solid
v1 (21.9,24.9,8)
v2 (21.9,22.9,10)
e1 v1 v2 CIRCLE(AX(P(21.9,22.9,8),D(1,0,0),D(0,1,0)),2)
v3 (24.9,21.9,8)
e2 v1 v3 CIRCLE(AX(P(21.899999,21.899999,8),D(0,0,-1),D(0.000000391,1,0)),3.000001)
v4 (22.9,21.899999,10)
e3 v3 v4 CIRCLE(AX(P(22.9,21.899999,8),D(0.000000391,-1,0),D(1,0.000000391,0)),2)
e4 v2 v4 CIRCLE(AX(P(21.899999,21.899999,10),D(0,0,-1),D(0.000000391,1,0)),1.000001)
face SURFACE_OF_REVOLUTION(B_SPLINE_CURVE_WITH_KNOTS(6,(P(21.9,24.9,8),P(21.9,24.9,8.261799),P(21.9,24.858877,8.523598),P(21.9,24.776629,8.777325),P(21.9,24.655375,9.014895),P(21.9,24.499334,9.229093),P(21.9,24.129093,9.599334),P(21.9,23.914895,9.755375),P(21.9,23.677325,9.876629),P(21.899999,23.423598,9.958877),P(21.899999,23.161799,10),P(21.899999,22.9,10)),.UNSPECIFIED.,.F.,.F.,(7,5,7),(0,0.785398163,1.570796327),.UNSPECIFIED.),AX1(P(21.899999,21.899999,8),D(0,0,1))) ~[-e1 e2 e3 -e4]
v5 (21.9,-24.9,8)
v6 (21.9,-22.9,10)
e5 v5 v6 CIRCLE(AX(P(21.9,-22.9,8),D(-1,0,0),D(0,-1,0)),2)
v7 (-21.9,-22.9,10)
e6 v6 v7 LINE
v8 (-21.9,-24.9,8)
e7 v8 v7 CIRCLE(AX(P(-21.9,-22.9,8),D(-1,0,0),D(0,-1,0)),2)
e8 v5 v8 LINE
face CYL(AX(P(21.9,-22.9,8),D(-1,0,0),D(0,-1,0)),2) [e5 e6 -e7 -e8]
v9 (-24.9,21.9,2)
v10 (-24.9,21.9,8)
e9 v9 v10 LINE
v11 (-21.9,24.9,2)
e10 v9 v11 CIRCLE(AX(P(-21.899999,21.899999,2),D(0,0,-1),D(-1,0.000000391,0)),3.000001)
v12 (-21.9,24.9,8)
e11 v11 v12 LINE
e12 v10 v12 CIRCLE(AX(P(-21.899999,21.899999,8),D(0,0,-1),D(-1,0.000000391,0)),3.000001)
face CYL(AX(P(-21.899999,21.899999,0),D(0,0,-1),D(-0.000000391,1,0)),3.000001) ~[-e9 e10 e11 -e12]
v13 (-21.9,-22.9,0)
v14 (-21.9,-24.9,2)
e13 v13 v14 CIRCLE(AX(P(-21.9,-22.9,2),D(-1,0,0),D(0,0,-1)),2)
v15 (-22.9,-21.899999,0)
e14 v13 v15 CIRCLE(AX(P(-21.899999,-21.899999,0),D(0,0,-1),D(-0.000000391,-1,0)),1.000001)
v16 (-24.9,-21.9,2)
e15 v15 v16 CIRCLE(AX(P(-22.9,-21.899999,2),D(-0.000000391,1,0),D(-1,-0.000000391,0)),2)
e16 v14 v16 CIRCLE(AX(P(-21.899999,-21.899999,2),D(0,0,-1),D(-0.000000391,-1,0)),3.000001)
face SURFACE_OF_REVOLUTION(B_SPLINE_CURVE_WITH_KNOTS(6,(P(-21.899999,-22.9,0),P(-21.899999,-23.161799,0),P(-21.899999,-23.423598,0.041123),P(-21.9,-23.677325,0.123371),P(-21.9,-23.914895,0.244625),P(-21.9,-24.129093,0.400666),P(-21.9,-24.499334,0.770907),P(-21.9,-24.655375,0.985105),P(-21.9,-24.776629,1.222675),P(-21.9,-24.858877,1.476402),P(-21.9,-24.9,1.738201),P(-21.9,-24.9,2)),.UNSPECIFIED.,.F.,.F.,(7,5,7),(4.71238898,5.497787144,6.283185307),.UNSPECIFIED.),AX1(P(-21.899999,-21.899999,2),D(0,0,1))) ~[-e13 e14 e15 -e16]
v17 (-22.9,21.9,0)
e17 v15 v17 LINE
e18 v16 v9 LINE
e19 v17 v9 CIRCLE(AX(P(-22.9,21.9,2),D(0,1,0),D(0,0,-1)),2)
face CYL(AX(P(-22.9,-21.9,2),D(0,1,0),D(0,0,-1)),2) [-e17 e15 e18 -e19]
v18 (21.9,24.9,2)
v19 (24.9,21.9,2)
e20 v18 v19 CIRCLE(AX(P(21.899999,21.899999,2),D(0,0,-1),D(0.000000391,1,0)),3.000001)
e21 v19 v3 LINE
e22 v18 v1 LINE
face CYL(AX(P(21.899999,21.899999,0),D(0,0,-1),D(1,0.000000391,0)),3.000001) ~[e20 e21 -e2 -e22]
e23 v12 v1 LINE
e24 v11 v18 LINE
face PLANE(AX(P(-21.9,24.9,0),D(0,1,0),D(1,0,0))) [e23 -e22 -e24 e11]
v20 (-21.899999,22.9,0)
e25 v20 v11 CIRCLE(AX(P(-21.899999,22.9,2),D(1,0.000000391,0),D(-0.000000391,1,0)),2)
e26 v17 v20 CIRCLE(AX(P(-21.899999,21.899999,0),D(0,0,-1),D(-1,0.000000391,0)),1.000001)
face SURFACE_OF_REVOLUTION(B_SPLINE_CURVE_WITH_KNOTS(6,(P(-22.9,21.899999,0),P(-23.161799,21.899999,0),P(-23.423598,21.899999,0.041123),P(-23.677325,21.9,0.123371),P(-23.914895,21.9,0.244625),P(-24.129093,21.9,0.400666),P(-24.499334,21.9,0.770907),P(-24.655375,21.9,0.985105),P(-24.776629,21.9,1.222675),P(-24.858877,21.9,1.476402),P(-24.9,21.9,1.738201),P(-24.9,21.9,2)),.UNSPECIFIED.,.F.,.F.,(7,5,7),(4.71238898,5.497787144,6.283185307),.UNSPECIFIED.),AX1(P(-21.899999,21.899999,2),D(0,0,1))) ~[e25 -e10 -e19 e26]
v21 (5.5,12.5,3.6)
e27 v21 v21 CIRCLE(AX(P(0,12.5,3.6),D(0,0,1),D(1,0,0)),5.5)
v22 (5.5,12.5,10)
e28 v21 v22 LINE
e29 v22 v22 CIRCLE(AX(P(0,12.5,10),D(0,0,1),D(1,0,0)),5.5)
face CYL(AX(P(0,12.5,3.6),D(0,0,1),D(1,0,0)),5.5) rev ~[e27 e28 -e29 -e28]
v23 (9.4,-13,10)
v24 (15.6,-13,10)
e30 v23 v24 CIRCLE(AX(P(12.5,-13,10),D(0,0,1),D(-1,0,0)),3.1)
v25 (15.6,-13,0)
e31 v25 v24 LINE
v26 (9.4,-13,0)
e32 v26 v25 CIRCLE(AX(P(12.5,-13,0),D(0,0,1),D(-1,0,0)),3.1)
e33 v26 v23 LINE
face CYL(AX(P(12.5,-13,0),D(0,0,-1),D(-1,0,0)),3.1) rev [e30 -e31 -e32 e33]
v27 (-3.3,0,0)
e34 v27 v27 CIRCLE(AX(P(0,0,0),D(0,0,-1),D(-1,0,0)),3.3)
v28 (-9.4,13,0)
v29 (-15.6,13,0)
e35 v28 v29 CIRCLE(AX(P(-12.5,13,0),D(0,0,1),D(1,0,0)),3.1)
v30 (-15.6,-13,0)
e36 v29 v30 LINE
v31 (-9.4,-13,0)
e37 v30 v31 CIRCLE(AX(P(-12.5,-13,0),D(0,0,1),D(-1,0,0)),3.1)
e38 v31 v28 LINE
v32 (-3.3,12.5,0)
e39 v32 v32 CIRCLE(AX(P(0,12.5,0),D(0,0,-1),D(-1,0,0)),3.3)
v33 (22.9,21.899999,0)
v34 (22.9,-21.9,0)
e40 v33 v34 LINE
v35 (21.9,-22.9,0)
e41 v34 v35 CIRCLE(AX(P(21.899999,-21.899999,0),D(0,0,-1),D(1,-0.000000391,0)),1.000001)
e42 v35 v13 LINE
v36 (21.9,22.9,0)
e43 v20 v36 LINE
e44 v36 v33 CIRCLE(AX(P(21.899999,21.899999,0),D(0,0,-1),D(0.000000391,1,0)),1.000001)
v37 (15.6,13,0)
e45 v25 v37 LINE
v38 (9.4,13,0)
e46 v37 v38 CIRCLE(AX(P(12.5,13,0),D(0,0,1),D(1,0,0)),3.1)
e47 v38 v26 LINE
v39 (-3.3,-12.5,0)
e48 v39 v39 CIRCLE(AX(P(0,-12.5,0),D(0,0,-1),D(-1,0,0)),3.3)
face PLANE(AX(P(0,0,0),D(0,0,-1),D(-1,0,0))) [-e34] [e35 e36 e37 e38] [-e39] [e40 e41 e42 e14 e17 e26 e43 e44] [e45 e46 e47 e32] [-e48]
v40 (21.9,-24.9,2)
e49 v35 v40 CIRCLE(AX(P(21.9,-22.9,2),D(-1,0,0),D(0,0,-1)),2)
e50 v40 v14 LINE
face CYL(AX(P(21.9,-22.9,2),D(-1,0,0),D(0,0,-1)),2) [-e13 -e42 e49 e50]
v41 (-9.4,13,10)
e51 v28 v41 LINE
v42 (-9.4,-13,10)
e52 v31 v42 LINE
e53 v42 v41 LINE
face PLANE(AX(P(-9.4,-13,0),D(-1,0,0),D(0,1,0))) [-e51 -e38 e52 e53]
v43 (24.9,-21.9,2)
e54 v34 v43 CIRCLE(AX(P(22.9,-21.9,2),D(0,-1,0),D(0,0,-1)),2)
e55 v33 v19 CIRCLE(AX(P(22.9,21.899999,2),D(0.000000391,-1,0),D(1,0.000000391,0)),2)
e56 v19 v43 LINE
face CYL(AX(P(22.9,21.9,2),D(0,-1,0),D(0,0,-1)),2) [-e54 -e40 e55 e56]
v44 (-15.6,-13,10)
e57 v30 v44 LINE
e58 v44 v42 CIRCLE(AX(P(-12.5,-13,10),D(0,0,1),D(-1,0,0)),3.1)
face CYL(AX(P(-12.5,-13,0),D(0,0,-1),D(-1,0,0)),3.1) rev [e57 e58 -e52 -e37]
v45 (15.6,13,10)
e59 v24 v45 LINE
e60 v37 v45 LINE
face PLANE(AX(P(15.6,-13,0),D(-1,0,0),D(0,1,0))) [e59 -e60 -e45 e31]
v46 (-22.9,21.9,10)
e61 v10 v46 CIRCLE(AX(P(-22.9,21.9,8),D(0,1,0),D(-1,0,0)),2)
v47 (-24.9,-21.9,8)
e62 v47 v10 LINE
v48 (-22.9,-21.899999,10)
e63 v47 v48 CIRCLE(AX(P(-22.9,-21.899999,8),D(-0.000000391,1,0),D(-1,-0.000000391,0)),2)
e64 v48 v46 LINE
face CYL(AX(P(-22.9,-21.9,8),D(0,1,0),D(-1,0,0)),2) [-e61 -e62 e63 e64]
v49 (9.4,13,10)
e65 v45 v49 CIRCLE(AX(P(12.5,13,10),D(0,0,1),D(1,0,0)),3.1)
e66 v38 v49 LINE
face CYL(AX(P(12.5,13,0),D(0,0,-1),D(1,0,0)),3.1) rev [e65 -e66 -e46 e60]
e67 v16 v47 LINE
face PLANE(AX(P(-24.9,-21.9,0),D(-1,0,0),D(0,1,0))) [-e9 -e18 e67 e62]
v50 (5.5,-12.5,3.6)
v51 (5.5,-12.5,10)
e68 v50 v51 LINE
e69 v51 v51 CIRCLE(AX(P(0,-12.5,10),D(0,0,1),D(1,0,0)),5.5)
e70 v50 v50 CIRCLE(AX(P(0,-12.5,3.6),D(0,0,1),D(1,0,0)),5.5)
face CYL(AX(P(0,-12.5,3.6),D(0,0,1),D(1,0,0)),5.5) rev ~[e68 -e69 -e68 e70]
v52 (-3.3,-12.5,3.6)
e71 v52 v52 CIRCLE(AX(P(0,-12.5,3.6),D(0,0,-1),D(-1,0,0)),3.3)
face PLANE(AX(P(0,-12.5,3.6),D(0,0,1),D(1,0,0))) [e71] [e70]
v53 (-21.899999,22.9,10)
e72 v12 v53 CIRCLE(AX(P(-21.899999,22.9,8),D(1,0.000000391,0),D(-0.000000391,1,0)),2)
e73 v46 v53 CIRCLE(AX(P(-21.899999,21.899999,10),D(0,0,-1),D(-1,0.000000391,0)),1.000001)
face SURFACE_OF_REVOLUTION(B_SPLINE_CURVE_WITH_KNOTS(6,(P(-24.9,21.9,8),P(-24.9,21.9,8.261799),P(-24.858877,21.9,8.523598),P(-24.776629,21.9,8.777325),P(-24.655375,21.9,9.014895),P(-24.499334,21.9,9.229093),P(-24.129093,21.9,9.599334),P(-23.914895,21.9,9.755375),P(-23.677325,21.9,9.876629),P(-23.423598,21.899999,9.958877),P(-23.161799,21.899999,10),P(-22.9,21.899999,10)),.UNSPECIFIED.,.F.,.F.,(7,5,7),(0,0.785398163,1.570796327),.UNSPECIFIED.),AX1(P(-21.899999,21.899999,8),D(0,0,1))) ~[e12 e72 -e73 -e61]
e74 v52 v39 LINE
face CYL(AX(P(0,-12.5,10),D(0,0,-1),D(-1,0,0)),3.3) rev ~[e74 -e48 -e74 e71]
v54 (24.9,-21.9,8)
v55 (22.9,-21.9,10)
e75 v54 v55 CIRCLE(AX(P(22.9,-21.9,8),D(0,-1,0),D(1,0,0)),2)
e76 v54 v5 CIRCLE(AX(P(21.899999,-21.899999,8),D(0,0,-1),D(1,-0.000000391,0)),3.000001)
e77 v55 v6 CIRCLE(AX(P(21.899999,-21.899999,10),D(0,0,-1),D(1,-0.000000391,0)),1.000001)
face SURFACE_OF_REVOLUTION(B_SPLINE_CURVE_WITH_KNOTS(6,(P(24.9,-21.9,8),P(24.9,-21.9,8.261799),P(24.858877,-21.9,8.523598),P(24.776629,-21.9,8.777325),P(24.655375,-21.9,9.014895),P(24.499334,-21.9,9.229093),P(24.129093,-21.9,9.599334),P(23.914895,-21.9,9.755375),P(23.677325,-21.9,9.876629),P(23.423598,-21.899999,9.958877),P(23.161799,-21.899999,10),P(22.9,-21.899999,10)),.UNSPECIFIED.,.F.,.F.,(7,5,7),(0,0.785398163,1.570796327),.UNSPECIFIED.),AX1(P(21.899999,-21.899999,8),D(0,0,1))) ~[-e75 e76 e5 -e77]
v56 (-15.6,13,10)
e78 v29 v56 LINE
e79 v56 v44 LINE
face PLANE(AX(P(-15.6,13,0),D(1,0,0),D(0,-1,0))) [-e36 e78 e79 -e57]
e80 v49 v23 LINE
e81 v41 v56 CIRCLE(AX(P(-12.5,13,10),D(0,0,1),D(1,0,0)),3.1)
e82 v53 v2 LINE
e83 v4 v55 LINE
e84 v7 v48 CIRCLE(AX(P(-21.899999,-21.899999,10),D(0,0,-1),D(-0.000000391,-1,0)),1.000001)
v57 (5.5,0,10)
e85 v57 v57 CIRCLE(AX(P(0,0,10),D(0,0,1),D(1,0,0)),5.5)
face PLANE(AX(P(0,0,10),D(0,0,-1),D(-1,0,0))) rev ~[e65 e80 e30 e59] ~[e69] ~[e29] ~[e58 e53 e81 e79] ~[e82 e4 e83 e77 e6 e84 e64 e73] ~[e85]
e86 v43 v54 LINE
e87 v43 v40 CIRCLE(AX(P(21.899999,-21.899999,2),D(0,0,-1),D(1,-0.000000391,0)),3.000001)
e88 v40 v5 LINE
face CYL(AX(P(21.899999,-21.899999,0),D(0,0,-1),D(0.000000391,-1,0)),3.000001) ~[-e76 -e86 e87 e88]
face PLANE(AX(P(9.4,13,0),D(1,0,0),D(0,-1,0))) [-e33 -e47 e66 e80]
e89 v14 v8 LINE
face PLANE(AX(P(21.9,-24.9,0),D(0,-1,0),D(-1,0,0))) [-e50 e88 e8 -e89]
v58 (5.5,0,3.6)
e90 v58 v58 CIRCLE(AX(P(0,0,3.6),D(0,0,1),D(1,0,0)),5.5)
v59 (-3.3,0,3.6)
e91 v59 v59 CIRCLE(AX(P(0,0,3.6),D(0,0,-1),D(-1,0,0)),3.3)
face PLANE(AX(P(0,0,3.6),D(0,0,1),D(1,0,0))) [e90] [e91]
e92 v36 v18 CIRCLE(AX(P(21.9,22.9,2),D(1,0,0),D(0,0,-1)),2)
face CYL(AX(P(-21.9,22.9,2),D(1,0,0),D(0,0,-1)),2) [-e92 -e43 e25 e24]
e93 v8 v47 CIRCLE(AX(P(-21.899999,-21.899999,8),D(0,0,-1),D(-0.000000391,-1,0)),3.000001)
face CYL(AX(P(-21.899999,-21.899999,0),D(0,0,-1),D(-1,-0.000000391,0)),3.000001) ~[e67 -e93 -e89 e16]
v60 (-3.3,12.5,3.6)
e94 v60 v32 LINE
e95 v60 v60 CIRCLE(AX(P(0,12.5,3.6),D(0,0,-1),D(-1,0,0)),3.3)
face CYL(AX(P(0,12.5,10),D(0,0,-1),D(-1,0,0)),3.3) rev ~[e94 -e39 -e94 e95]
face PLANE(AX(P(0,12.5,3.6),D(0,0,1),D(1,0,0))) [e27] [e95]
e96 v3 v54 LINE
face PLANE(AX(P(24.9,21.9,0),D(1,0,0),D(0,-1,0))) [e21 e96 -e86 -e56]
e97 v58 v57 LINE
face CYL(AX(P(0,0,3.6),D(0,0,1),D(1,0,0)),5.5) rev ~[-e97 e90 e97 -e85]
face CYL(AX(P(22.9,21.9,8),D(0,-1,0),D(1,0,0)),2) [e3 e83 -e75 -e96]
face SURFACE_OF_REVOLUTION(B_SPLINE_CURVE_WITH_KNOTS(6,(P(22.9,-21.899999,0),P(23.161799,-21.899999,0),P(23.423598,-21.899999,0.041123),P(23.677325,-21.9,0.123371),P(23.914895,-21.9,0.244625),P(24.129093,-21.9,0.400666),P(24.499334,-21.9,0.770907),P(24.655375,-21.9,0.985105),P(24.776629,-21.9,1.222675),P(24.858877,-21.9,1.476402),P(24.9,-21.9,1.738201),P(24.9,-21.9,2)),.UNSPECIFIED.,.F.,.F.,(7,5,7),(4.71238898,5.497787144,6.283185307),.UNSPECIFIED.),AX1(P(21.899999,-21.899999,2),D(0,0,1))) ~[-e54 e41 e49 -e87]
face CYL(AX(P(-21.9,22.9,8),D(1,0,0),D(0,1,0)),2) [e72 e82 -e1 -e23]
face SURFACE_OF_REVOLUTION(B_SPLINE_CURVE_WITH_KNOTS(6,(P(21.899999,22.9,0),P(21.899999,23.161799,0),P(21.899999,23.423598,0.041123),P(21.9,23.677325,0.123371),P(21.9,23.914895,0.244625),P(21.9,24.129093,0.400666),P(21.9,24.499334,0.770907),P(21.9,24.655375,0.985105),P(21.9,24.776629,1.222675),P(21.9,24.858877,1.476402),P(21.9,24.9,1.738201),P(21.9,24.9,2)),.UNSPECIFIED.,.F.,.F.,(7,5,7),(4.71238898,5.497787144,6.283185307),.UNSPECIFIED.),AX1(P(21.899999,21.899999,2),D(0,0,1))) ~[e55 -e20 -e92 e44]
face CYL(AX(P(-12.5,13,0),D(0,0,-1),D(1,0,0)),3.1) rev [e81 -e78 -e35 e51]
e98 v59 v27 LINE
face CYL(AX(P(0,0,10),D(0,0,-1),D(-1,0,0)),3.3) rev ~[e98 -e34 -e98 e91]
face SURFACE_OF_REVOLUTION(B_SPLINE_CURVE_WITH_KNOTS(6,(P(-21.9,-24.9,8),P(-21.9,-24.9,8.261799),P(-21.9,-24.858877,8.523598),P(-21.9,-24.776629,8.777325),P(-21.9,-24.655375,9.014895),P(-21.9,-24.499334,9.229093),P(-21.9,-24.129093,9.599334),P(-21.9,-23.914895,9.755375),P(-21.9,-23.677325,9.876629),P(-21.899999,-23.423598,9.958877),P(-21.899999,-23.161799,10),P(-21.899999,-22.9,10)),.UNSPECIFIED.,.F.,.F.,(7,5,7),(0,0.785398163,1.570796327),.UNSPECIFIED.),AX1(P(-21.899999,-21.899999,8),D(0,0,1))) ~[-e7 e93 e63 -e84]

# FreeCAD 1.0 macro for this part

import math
import FreeCAD as App
import Part
import Sketcher

V = App.Vector


def edges_at(feature, points):
    """Names of the edges that pass closest to the given points."""
    edges = feature.Shape.Edges
    near = lambda p: min(range(len(edges)), key=lambda i: edges[i].distToShape(Part.Vertex(*p))[0])
    return sorted({f"Edge{near(p) + 1}" for p in points})

doc = App.newDocument("Part")
body = doc.addObject("PartDesign::Body", "Body")

sketch1 = body.newObject("Sketcher::SketchObject", "Sketch")
sketch1.AttachmentSupport = (doc.getObject("XY_Plane"), [""])
sketch1.MapMode = "FlatFace"
sketch1.addGeometry([
    Part.LineSegment(V(21.9, 24.9, 0), V(-21.9, 24.9, 0)),
    Part.ArcOfCircle(Part.Circle(V(-21.899999, 21.899999, 0), V(0, 0, 1), 3.000001), math.radians(90.000022), math.radians(179.999978)),
    Part.LineSegment(V(-24.9, 21.9, 0), V(-24.9, -21.9, 0)),
    Part.ArcOfCircle(Part.Circle(V(-21.899999, -21.899999, 0), V(0, 0, 1), 3.000001), math.radians(-179.999978), math.radians(-90.000022)),
    Part.LineSegment(V(-21.9, -24.9, 0), V(21.9, -24.9, 0)),
    Part.ArcOfCircle(Part.Circle(V(21.899999, -21.899999, 0), V(0, 0, 1), 3.000001), math.radians(-89.999978), math.radians(-0.000022)),
    Part.LineSegment(V(24.9, -21.9, 0), V(24.9, 21.9, 0)),
    Part.ArcOfCircle(Part.Circle(V(21.899999, 21.899999, 0), V(0, 0, 1), 3.000001), math.radians(0.000022), math.radians(89.999978)),
    Part.LineSegment(V(15.6, 13, 0), V(15.6, -13, 0)),
    Part.ArcOfCircle(Part.Circle(V(12.5, -13, 0), V(0, 0, 1), 3.1), math.radians(180), math.radians(360)),
    Part.LineSegment(V(9.4, -13, 0), V(9.4, 13, 0)),
    Part.ArcOfCircle(Part.Circle(V(12.5, 13, 0), V(0, 0, 1), 3.1), math.radians(0), math.radians(180)),
    Part.LineSegment(V(-9.4, 13, 0), V(-9.4, -13, 0)),
    Part.ArcOfCircle(Part.Circle(V(-12.5, -13, 0), V(0, 0, 1), 3.1), math.radians(180), math.radians(360)),
    Part.LineSegment(V(-15.6, -13, 0), V(-15.6, 13, 0)),
    Part.ArcOfCircle(Part.Circle(V(-12.5, 13, 0), V(0, 0, 1), 3.1), math.radians(0), math.radians(180)),
], False)
sketch1.addConstraint([
    Sketcher.Constraint("Tangent", 0, 2, 1, 1),
    Sketcher.Constraint("Tangent", 1, 2, 2, 1),
    Sketcher.Constraint("Tangent", 2, 2, 3, 1),
    Sketcher.Constraint("Tangent", 3, 2, 4, 1),
    Sketcher.Constraint("Tangent", 4, 2, 5, 1),
    Sketcher.Constraint("Tangent", 5, 2, 6, 1),
    Sketcher.Constraint("Tangent", 6, 2, 7, 1),
    Sketcher.Constraint("Tangent", 7, 2, 0, 1),
    Sketcher.Constraint("Tangent", 8, 2, 9, 2),
    Sketcher.Constraint("Tangent", 9, 1, 10, 1),
    Sketcher.Constraint("Tangent", 10, 2, 11, 2),
    Sketcher.Constraint("Tangent", 11, 1, 8, 1),
    Sketcher.Constraint("Tangent", 12, 2, 13, 2),
    Sketcher.Constraint("Tangent", 13, 1, 14, 1),
    Sketcher.Constraint("Tangent", 14, 2, 15, 2),
    Sketcher.Constraint("Tangent", 15, 1, 12, 1),
    Sketcher.Constraint("Horizontal", 0),
    Sketcher.Constraint("Vertical", 2),
    Sketcher.Constraint("Horizontal", 4),
    Sketcher.Constraint("Vertical", 6),
    Sketcher.Constraint("Vertical", 8),
    Sketcher.Constraint("Vertical", 10),
    Sketcher.Constraint("Vertical", 12),
    Sketcher.Constraint("Vertical", 14),
    Sketcher.Constraint("Equal", 1, 3),
    Sketcher.Constraint("Equal", 3, 5),
    Sketcher.Constraint("Equal", 5, 7),
    Sketcher.Constraint("Equal", 11, 13),
    Sketcher.Constraint("Symmetric", 1, 3, 5, 3, -1, 1),
    Sketcher.Constraint("Symmetric", 11, 3, 13, 3, -1, 1),
    Sketcher.Constraint("Horizontal", 9, 3, 13, 3),
    Sketcher.Constraint("Horizontal", 11, 3, 15, 3),
    Sketcher.Constraint("Equal", 4, 2),
    Sketcher.Constraint("Radius", 1, 3.000001),
    Sketcher.Constraint("Radius", 9, 3.1),
    Sketcher.Constraint("DistanceY", 8, 2, 8, 1, 26.0),
    Sketcher.Constraint("DistanceX", 0, 2, 0, 1, 43.8),
    Sketcher.Constraint("DistanceX", 13, 3, 9, 3, 25.0),
])
pad1 = body.newObject("PartDesign::Pad", "Pad")
pad1.Profile = sketch1
pad1.Length = 10
doc.recompute()

fillet = body.newObject("PartDesign::Fillet", "Fillet")
fillet.Base = (pad1, edges_at(pad1, [(0, -24.9, 10)]))
fillet.Radius = 2
doc.recompute()

fillet2 = body.newObject("PartDesign::Fillet", "Fillet001")
fillet2.Base = (fillet, edges_at(fillet, [(0, -24.9, 0)]))
fillet2.Radius = 2

sketch2 = body.newObject("Sketcher::SketchObject", "Sketch001")
sketch2.AttachmentSupport = (doc.getObject("XY_Plane"), [""])
sketch2.MapMode = "FlatFace"
sketch2.AttachmentOffset = App.Placement(V(0, 0, 10), App.Rotation())
sketch2.addGeometry([
    Part.Circle(V(0, 0, 0), V(0, 0, 1), 3.3),
    Part.Circle(V(0, 12.5, 0), V(0, 0, 1), 3.3),
    Part.Circle(V(0, -12.5, 0), V(0, 0, 1), 3.3),
], False)
sketch2.addConstraint([
    Sketcher.Constraint("Coincident", 0, 3, -1, 1),
    Sketcher.Constraint("Equal", 0, 1),
    Sketcher.Constraint("Equal", 1, 2),
    Sketcher.Constraint("Symmetric", 1, 3, 2, 3, -1, 1),
    Sketcher.Constraint("PointOnObject", 1, 3, -2),
    Sketcher.Constraint("Diameter", 0, 6.6),
    Sketcher.Constraint("DistanceY", 2, 3, 1, 3, 25.0),
])
doc.recompute()
hole = body.newObject("PartDesign::Hole", "Hole")
hole.Profile = sketch2
hole.ThreadType = "None"
hole.Diameter = 6.6
hole.DepthType = "Dimension"
hole.Depth = 25
hole.DrillPoint = "Flat"
hole.HoleCutType = "Counterbore"
hole.HoleCutDiameter = 11
hole.HoleCutDepth = 6.4

doc.recompute()
